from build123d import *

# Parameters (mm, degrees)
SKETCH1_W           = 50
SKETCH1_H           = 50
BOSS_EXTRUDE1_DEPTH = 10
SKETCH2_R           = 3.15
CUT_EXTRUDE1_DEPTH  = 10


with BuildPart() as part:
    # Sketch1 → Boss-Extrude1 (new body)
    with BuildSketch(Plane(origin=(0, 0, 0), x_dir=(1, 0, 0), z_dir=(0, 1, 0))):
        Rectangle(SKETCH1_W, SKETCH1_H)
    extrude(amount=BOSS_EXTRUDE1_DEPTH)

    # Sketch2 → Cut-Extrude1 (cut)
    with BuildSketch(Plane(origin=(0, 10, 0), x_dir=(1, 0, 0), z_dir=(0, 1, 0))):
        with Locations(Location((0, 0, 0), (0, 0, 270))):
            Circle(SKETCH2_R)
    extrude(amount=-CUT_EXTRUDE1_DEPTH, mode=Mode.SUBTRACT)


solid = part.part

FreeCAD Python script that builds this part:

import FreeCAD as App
import Part
import Sketcher

V = App.Vector
Q = App.Units.Quantity


def add_polygon(sketch, points):
    """Adds a closed chain of lines whose ends are joined by coincident constraints."""
    first, n = sketch.GeometryCount, len(points)
    for a, b in zip(points, points[1:] + points[:1]):
        sketch.addGeometry(Part.LineSegment(App.Vector(*a, 0), App.Vector(*b, 0)), False)
    for i in range(n):
        sketch.addConstraint(Sketcher.Constraint("Coincident", first + i, 2, first + (i + 1) % n, 1))

doc = App.newDocument("Part")
body = doc.addObject("PartDesign::Body", "Body")

sketch1 = body.newObject("Sketcher::SketchObject", "Sketch")
sketch1.AttachmentSupport = (doc.getObject("XZ_Plane"), [""])
sketch1.MapMode = "FlatFace"
add_polygon(sketch1, [(-25, -25), (-25, 25), (25, 25), (25, -25)])
sketch1.addConstraint(Sketcher.Constraint("Vertical", 0))
sketch1.addConstraint(Sketcher.Constraint("Horizontal", 1))
sketch1.addConstraint(Sketcher.Constraint("Vertical", 2))
sketch1.addConstraint(Sketcher.Constraint("Horizontal", 3))
sketch1.addConstraint(Sketcher.Constraint("Symmetric", 0, 2, 2, 2, -1, 1))
sketch1.addConstraint(Sketcher.Constraint("Equal", 3, 0))
sketch1.addConstraint(Sketcher.Constraint("DistanceX", 1, 1, 1, 2, Q("50 mm")))
pad1 = body.newObject("PartDesign::Pad", "Pad")
pad1.Profile = sketch1
pad1.Length = 10
pad1.Reversed = True

sketch2 = body.newObject("Sketcher::SketchObject", "Sketch001")
sketch2.AttachmentSupport = (doc.getObject("XZ_Plane"), [""])
sketch2.MapMode = "FlatFace"
sketch2.AttachmentOffset = App.Placement(V(0, 0, -10), App.Rotation())
sketch2.addGeometry(Part.Circle(V(0, 0, 0), V(0, 0, 1), 3.1), False)
sketch2.addConstraint(Sketcher.Constraint("Coincident", 0, 3, -1, 1))
sketch2.addConstraint(Sketcher.Constraint("Diameter", 0, Q("6.3 mm")))
pocket1 = body.newObject("PartDesign::Pocket", "Pocket")
pocket1.Profile = sketch2
pocket1.Length = 10
pocket1.Reversed = True

doc.recompute()
